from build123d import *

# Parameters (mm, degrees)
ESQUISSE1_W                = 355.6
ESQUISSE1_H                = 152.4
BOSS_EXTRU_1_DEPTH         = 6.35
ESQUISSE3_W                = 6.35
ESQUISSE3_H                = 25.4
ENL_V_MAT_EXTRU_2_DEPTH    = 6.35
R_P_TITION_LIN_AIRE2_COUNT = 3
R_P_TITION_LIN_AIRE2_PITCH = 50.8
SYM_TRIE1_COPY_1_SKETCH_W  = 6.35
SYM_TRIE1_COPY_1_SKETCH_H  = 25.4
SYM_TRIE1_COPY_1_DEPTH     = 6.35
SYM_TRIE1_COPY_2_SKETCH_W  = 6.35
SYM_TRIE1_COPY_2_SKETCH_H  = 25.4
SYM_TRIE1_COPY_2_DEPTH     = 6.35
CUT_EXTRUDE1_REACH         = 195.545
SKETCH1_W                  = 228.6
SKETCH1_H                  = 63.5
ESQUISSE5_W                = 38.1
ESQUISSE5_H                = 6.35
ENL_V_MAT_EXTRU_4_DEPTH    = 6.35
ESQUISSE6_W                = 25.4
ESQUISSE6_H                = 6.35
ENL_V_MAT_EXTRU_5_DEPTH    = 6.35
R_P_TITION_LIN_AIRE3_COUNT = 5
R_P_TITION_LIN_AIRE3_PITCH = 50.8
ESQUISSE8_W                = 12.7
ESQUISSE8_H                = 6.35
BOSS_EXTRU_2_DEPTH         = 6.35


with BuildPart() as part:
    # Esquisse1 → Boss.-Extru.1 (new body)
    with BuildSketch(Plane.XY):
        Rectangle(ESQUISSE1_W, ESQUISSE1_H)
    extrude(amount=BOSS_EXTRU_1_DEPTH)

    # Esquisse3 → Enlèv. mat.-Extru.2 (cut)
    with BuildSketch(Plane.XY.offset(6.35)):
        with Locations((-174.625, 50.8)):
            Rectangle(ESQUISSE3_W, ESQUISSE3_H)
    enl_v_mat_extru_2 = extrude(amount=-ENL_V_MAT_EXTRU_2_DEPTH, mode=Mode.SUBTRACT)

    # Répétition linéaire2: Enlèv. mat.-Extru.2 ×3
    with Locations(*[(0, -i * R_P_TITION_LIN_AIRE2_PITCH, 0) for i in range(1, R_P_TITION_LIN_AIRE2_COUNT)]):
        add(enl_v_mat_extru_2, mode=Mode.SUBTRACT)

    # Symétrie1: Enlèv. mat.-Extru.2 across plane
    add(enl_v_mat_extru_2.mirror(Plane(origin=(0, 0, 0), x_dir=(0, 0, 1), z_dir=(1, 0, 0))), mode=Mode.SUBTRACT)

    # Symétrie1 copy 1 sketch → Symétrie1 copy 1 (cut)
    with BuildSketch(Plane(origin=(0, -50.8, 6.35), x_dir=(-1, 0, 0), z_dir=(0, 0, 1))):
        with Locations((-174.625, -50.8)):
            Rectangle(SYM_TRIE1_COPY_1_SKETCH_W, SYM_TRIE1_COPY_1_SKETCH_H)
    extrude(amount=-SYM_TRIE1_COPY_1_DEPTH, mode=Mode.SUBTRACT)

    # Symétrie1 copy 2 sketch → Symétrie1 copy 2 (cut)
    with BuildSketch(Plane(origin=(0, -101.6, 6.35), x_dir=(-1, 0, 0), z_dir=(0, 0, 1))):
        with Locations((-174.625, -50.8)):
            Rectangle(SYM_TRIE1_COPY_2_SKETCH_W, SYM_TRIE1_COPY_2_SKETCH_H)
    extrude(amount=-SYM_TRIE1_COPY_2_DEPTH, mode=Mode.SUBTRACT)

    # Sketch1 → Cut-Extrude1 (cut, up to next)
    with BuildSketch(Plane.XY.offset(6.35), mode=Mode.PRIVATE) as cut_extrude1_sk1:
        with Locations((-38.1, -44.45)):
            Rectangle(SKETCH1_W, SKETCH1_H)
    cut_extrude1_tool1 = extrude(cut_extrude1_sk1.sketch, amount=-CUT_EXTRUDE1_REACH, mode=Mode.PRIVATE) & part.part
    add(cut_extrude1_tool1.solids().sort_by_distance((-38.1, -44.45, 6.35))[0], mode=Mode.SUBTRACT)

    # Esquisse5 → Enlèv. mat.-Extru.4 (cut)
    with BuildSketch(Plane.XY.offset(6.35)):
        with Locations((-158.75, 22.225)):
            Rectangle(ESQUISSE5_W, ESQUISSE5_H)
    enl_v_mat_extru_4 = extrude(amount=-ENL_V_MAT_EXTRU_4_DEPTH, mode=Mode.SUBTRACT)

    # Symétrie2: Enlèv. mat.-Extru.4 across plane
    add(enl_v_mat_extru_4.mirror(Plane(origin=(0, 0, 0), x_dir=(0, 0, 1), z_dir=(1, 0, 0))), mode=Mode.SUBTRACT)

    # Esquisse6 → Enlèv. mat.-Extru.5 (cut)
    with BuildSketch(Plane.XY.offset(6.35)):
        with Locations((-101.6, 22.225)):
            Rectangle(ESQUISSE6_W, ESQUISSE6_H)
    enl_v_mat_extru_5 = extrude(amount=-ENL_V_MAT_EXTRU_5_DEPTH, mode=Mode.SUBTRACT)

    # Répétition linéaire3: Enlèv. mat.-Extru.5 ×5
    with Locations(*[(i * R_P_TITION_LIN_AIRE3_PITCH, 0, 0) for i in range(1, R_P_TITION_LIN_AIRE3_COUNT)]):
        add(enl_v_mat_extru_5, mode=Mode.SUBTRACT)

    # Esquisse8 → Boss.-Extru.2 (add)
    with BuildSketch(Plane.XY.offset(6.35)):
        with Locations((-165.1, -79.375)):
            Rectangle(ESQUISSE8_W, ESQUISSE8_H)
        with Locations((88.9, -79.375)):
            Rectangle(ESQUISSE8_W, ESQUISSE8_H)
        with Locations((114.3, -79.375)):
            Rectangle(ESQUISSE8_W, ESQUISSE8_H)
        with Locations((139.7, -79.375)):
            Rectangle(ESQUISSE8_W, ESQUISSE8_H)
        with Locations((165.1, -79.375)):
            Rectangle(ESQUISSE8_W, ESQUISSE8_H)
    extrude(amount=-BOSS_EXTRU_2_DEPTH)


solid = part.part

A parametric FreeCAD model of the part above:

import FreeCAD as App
import Part
import Sketcher
Q = App.Units.Quantity

doc = App.newDocument("Part")
params = doc.addObject("Spreadsheet::Sheet", "Params")
for row, (alias, value) in enumerate([
    ("sketch1_width", "14 in"),
    ("sketch1_height", "6 in"),
    ("pad1_length", "0.25 in"),
    ("sketch2_height", "1 in"),
    ("sketch2_width", "0.25 in"),
    ("pocket1_length", "0.25 in"),
    ("linearpattern_pitch", "2 in"),
    ("sketch3_height", "1 in"),
    ("sketch3_width", "0.25 in"),
    ("pocket2_length", "0.25 in"),
    ("sketch4_height", "1 in"),
    ("sketch4_width", "0.25 in"),
    ("pocket3_length", "0.25 in"),
    ("sketch5_width", "9 in"),
    ("sketch5_height", "2.5 in"),
    ("sketch6_width", "1.5 in"),
    ("sketch6_height", "0.25 in"),
    ("pocket5_length", "0.25 in"),
    ("sketch7_width", "1 in"),
    ("sketch7_height", "0.25 in"),
    ("pocket6_length", "0.25 in"),
    ("linearpattern2_pitch", "2 in"),
    ("sketch8_width", "0.5 in"),
    ("sketch8_height", "0.25 in"),
    ("pad2_length", "0.25 in"),
], start=1):
    params.set(f"A{row}", alias)
    params.set(f"B{row}", "=" + value)
    params.setAlias(f"B{row}", alias)

body = doc.addObject("PartDesign::Body", "Body")

sketch1 = body.newObject("Sketcher::SketchObject", "Sketch")
sketch1.AttachmentSupport = (doc.getObject("XY_Plane"), [""])
sketch1.MapMode = "FlatFace"
sketch1.addGeometry(Part.LineSegment(App.Vector(-178, 76, 0), App.Vector(-178, -76, 0)), False)
sketch1.addGeometry(Part.LineSegment(App.Vector(-178, -76, 0), App.Vector(178, -76, 0)), False)
sketch1.addGeometry(Part.LineSegment(App.Vector(178, -76, 0), App.Vector(178, 76, 0)), False)
sketch1.addGeometry(Part.LineSegment(App.Vector(178, 76, 0), App.Vector(-178, 76, 0)), False)
sketch1.addConstraint(Sketcher.Constraint("Coincident", 0, 2, 1, 1))
sketch1.addConstraint(Sketcher.Constraint("Coincident", 1, 2, 2, 1))
sketch1.addConstraint(Sketcher.Constraint("Coincident", 2, 2, 3, 1))
sketch1.addConstraint(Sketcher.Constraint("Coincident", 3, 2, 0, 1))
sketch1.addConstraint(Sketcher.Constraint("Vertical", 0))
sketch1.addConstraint(Sketcher.Constraint("Horizontal", 1))
sketch1.addConstraint(Sketcher.Constraint("Vertical", 2))
sketch1.addConstraint(Sketcher.Constraint("Horizontal", 3))
sketch1.addConstraint(Sketcher.Constraint("Symmetric", 0, 2, 2, 2, -1, 1))
sketch1.addConstraint(Sketcher.Constraint("DistanceX", 1, 1, 1, 2, Q("14 in")))
sketch1.addConstraint(Sketcher.Constraint("DistanceY", 0, 2, 0, 1, Q("6 in")))
sketch1.setExpression("Constraints[9]", "Params.sketch1_width")
sketch1.setExpression("Constraints[10]", "Params.sketch1_height")
pad1 = body.newObject("PartDesign::Pad", "Pad")
pad1.Profile = sketch1
pad1.setExpression("Length", "Params.pad1_length")

sketch2 = body.newObject("Sketcher::SketchObject", "Sketch001")
sketch2.AttachmentSupport = (doc.getObject("XY_Plane"), [""])
sketch2.MapMode = "FlatFace"
sketch2.AttachmentOffset = App.Placement(App.Vector(0, 0, 0.25 * 25.4), App.Rotation())
sketch2.addGeometry(Part.LineSegment(App.Vector(-178, 64, 0), App.Vector(-178, 38, 0)), False)
sketch2.addGeometry(Part.LineSegment(App.Vector(-178, 38, 0), App.Vector(-171, 38, 0)), False)
sketch2.addGeometry(Part.LineSegment(App.Vector(-171, 38, 0), App.Vector(-171, 64, 0)), False)
sketch2.addGeometry(Part.LineSegment(App.Vector(-171, 64, 0), App.Vector(-178, 64, 0)), False)
sketch2.addConstraint(Sketcher.Constraint("Coincident", 0, 2, 1, 1))
sketch2.addConstraint(Sketcher.Constraint("Coincident", 1, 2, 2, 1))
sketch2.addConstraint(Sketcher.Constraint("Coincident", 2, 2, 3, 1))
sketch2.addConstraint(Sketcher.Constraint("Coincident", 3, 2, 0, 1))
sketch2.addConstraint(Sketcher.Constraint("Vertical", 0))
sketch2.addConstraint(Sketcher.Constraint("Horizontal", 1))
sketch2.addConstraint(Sketcher.Constraint("Vertical", 2))
sketch2.addConstraint(Sketcher.Constraint("Horizontal", 3))
sketch2.addConstraint(Sketcher.Constraint("DistanceY", 0, 2, 0, 1, Q("1 in")))
sketch2.addConstraint(Sketcher.Constraint("DistanceX", 0, 2, -1, 1, Q("7 in")))
sketch2.addConstraint(Sketcher.Constraint("DistanceX", 1, 1, 1, 2, Q("0.25 in")))
sketch2.addConstraint(Sketcher.Constraint("DistanceY", -1, 1, 0, 2, Q("1.5 in")))
sketch2.setExpression("Constraints[8]", "Params.sketch2_height")
sketch2.setExpression("Constraints[10]", "Params.sketch2_width")
pocket1 = body.newObject("PartDesign::Pocket", "Pocket")
pocket1.Profile = sketch2
pocket1.setExpression("Length", "Params.pocket1_length")
doc.recompute()

linearpattern = body.newObject("PartDesign::LinearPattern", "LinearPattern")
linearpattern.Originals = [pocket1]
linearpattern.Direction = (doc.getObject("Y_Axis"), [""])
linearpattern.Mode = "offset"
linearpattern.setExpression("Offset", "Params.linearpattern_pitch")
linearpattern.Occurrences = 3
linearpattern.Reversed = True
body.Tip = linearpattern
doc.recompute()

mirrored = body.newObject("PartDesign::Mirrored", "Mirrored")
mirrored.Originals = [pocket1]
mirrored.MirrorPlane = (doc.getObject("YZ_Plane"), [""])
body.Tip = mirrored

sketch3 = body.newObject("Sketcher::SketchObject", "Sketch002")
sketch3.AttachmentSupport = (doc.getObject("XY_Plane"), [""])
sketch3.MapMode = "FlatFace"
sketch3.AttachmentOffset = App.Placement(App.Vector(0, 0, 0.25 * 25.4), App.Rotation())
sketch3.addGeometry(Part.LineSegment(App.Vector(178, -13, 0), App.Vector(178, 13, 0)), False)
sketch3.addGeometry(Part.LineSegment(App.Vector(178, 13, 0), App.Vector(171, 13, 0)), False)
sketch3.addGeometry(Part.LineSegment(App.Vector(171, 13, 0), App.Vector(171, -13, 0)), False)
sketch3.addGeometry(Part.LineSegment(App.Vector(171, -13, 0), App.Vector(178, -13, 0)), False)
sketch3.addConstraint(Sketcher.Constraint("Coincident", 0, 2, 1, 1))
sketch3.addConstraint(Sketcher.Constraint("Coincident", 1, 2, 2, 1))
sketch3.addConstraint(Sketcher.Constraint("Coincident", 2, 2, 3, 1))
sketch3.addConstraint(Sketcher.Constraint("Coincident", 3, 2, 0, 1))
sketch3.addConstraint(Sketcher.Constraint("Vertical", 0))
sketch3.addConstraint(Sketcher.Constraint("Horizontal", 1))
sketch3.addConstraint(Sketcher.Constraint("Vertical", 2))
sketch3.addConstraint(Sketcher.Constraint("Horizontal", 3))
sketch3.addConstraint(Sketcher.Constraint("DistanceY", 0, 1, 0, 2, Q("1 in")))
sketch3.addConstraint(Sketcher.Constraint("DistanceX", -1, 1, 0, 2, Q("7 in")))
sketch3.addConstraint(Sketcher.Constraint("DistanceX", 1, 2, 1, 1, Q("0.25 in")))
sketch3.addConstraint(Sketcher.Constraint("DistanceY", -1, 1, 0, 2, Q("0.5 in")))
sketch3.setExpression("Constraints[8]", "Params.sketch3_height")
sketch3.setExpression("Constraints[10]", "Params.sketch3_width")
pocket2 = body.newObject("PartDesign::Pocket", "Pocket001")
pocket2.Profile = sketch3
pocket2.setExpression("Length", "Params.pocket2_length")

sketch4 = body.newObject("Sketcher::SketchObject", "Sketch003")
sketch4.AttachmentSupport = (doc.getObject("XY_Plane"), [""])
sketch4.MapMode = "FlatFace"
sketch4.AttachmentOffset = App.Placement(App.Vector(0, 0, 0.25 * 25.4), App.Rotation())
sketch4.addGeometry(Part.LineSegment(App.Vector(178, -64, 0), App.Vector(178, -38, 0)), False)
sketch4.addGeometry(Part.LineSegment(App.Vector(178, -38, 0), App.Vector(171, -38, 0)), False)
sketch4.addGeometry(Part.LineSegment(App.Vector(171, -38, 0), App.Vector(171, -64, 0)), False)
sketch4.addGeometry(Part.LineSegment(App.Vector(171, -64, 0), App.Vector(178, -64, 0)), False)
sketch4.addConstraint(Sketcher.Constraint("Coincident", 0, 2, 1, 1))
sketch4.addConstraint(Sketcher.Constraint("Coincident", 1, 2, 2, 1))
sketch4.addConstraint(Sketcher.Constraint("Coincident", 2, 2, 3, 1))
sketch4.addConstraint(Sketcher.Constraint("Coincident", 3, 2, 0, 1))
sketch4.addConstraint(Sketcher.Constraint("Vertical", 0))
sketch4.addConstraint(Sketcher.Constraint("Horizontal", 1))
sketch4.addConstraint(Sketcher.Constraint("Vertical", 2))
sketch4.addConstraint(Sketcher.Constraint("Horizontal", 3))
sketch4.addConstraint(Sketcher.Constraint("DistanceY", 0, 1, 0, 2, Q("1 in")))
sketch4.addConstraint(Sketcher.Constraint("DistanceX", -1, 1, 0, 2, Q("7 in")))
sketch4.addConstraint(Sketcher.Constraint("DistanceX", 1, 2, 1, 1, Q("0.25 in")))
sketch4.addConstraint(Sketcher.Constraint("DistanceY", 0, 2, -1, 1, Q("1.5 in")))
sketch4.setExpression("Constraints[8]", "Params.sketch4_height")
sketch4.setExpression("Constraints[10]", "Params.sketch4_width")
pocket3 = body.newObject("PartDesign::Pocket", "Pocket002")
pocket3.Profile = sketch4
pocket3.setExpression("Length", "Params.pocket3_length")

sketch5 = body.newObject("Sketcher::SketchObject", "Sketch004")
sketch5.AttachmentSupport = (doc.getObject("XY_Plane"), [""])
sketch5.MapMode = "FlatFace"
sketch5.AttachmentOffset = App.Placement(App.Vector(0, 0, 0.25 * 25.4), App.Rotation())
sketch5.addGeometry(Part.LineSegment(App.Vector(-152, -13, 0), App.Vector(-152, -76, 0)), False)
sketch5.addGeometry(Part.LineSegment(App.Vector(-152, -76, 0), App.Vector(76, -76, 0)), False)
sketch5.addGeometry(Part.LineSegment(App.Vector(76, -76, 0), App.Vector(76, -13, 0)), False)
sketch5.addGeometry(Part.LineSegment(App.Vector(76, -13, 0), App.Vector(-152, -13, 0)), False)
sketch5.addConstraint(Sketcher.Constraint("Coincident", 0, 2, 1, 1))
sketch5.addConstraint(Sketcher.Constraint("Coincident", 1, 2, 2, 1))
sketch5.addConstraint(Sketcher.Constraint("Coincident", 2, 2, 3, 1))
sketch5.addConstraint(Sketcher.Constraint("Coincident", 3, 2, 0, 1))
sketch5.addConstraint(Sketcher.Constraint("Vertical", 0))
sketch5.addConstraint(Sketcher.Constraint("Horizontal", 1))
sketch5.addConstraint(Sketcher.Constraint("Vertical", 2))
sketch5.addConstraint(Sketcher.Constraint("Horizontal", 3))
sketch5.addConstraint(Sketcher.Constraint("DistanceX", 1, 1, 1, 2, Q("9 in")))
sketch5.addConstraint(Sketcher.Constraint("DistanceY", 0, 2, 0, 1, Q("2.5 in")))
sketch5.addConstraint(Sketcher.Constraint("DistanceX", 0, 2, -1, 1, Q("6 in")))
sketch5.addConstraint(Sketcher.Constraint("DistanceY", 0, 2, -1, 1, Q("3 in")))
sketch5.setExpression("Constraints[8]", "Params.sketch5_width")
sketch5.setExpression("Constraints[9]", "Params.sketch5_height")
pocket4 = body.newObject("PartDesign::Pocket", "Pocket003")
pocket4.Profile = sketch5
pocket4.Type = "UpToFirst"

sketch6 = body.newObject("Sketcher::SketchObject", "Sketch005")
sketch6.AttachmentSupport = (doc.getObject("XY_Plane"), [""])
sketch6.MapMode = "FlatFace"
sketch6.AttachmentOffset = App.Placement(App.Vector(0, 0, 0.25 * 25.4), App.Rotation())
sketch6.addGeometry(Part.LineSegment(App.Vector(-178, 25, 0), App.Vector(-178, 19, 0)), False)
sketch6.addGeometry(Part.LineSegment(App.Vector(-178, 19, 0), App.Vector(-140, 19, 0)), False)
sketch6.addGeometry(Part.LineSegment(App.Vector(-140, 19, 0), App.Vector(-140, 25, 0)), False)
sketch6.addGeometry(Part.LineSegment(App.Vector(-140, 25, 0), App.Vector(-178, 25, 0)), False)
sketch6.addConstraint(Sketcher.Constraint("Coincident", 0, 2, 1, 1))
sketch6.addConstraint(Sketcher.Constraint("Coincident", 1, 2, 2, 1))
sketch6.addConstraint(Sketcher.Constraint("Coincident", 2, 2, 3, 1))
sketch6.addConstraint(Sketcher.Constraint("Coincident", 3, 2, 0, 1))
sketch6.addConstraint(Sketcher.Constraint("Vertical", 0))
sketch6.addConstraint(Sketcher.Constraint("Horizontal", 1))
sketch6.addConstraint(Sketcher.Constraint("Vertical", 2))
sketch6.addConstraint(Sketcher.Constraint("Horizontal", 3))
sketch6.addConstraint(Sketcher.Constraint("DistanceX", 1, 1, 1, 2, Q("1.5 in")))
sketch6.addConstraint(Sketcher.Constraint("DistanceX", 0, 2, -1, 1, Q("7 in")))
sketch6.addConstraint(Sketcher.Constraint("DistanceY", -1, 1, 2, 2, Q("1 in")))
sketch6.addConstraint(Sketcher.Constraint("DistanceY", 0, 2, 0, 1, Q("0.25 in")))
sketch6.setExpression("Constraints[8]", "Params.sketch6_width")
sketch6.setExpression("Constraints[11]", "Params.sketch6_height")
pocket5 = body.newObject("PartDesign::Pocket", "Pocket004")
pocket5.Profile = sketch6
pocket5.setExpression("Length", "Params.pocket5_length")
doc.recompute()

mirrored2 = body.newObject("PartDesign::Mirrored", "Mirrored001")
mirrored2.Originals = [pocket5]
mirrored2.MirrorPlane = (doc.getObject("YZ_Plane"), [""])
body.Tip = mirrored2

sketch7 = body.newObject("Sketcher::SketchObject", "Sketch006")
sketch7.AttachmentSupport = (doc.getObject("XY_Plane"), [""])
sketch7.MapMode = "FlatFace"
sketch7.AttachmentOffset = App.Placement(App.Vector(0, 0, 0.25 * 25.4), App.Rotation())
sketch7.addGeometry(Part.LineSegment(App.Vector(-114, 25, 0), App.Vector(-114, 19, 0)), False)
sketch7.addGeometry(Part.LineSegment(App.Vector(-114, 19, 0), App.Vector(-89, 19, 0)), False)
sketch7.addGeometry(Part.LineSegment(App.Vector(-89, 19, 0), App.Vector(-89, 25, 0)), False)
sketch7.addGeometry(Part.LineSegment(App.Vector(-89, 25, 0), App.Vector(-114, 25, 0)), False)
sketch7.addConstraint(Sketcher.Constraint("Coincident", 0, 2, 1, 1))
sketch7.addConstraint(Sketcher.Constraint("Coincident", 1, 2, 2, 1))
sketch7.addConstraint(Sketcher.Constraint("Coincident", 2, 2, 3, 1))
sketch7.addConstraint(Sketcher.Constraint("Coincident", 3, 2, 0, 1))
sketch7.addConstraint(Sketcher.Constraint("Vertical", 0))
sketch7.addConstraint(Sketcher.Constraint("Horizontal", 1))
sketch7.addConstraint(Sketcher.Constraint("Vertical", 2))
sketch7.addConstraint(Sketcher.Constraint("Horizontal", 3))
sketch7.addConstraint(Sketcher.Constraint("DistanceX", 1, 1, 1, 2, Q("1 in")))
sketch7.addConstraint(Sketcher.Constraint("DistanceY", -1, 1, 2, 2, Q("1 in")))
sketch7.addConstraint(Sketcher.Constraint("DistanceY", 0, 2, 0, 1, Q("0.25 in")))
sketch7.addConstraint(Sketcher.Constraint("DistanceX", 0, 2, -1, 1, Q("4.5 in")))
sketch7.setExpression("Constraints[8]", "Params.sketch7_width")
sketch7.setExpression("Constraints[10]", "Params.sketch7_height")
pocket6 = body.newObject("PartDesign::Pocket", "Pocket005")
pocket6.Profile = sketch7
pocket6.setExpression("Length", "Params.pocket6_length")
doc.recompute()

linearpattern2 = body.newObject("PartDesign::LinearPattern", "LinearPattern001")
linearpattern2.Originals = [pocket6]
linearpattern2.Direction = (doc.getObject("X_Axis"), [""])
linearpattern2.Mode = "offset"
linearpattern2.setExpression("Offset", "Params.linearpattern2_pitch")
linearpattern2.Occurrences = 5
body.Tip = linearpattern2

sketch8 = body.newObject("Sketcher::SketchObject", "Sketch007")
sketch8.AttachmentSupport = (doc.getObject("XY_Plane"), [""])
sketch8.MapMode = "FlatFace"
sketch8.AttachmentOffset = App.Placement(App.Vector(0, 0, 0.25 * 25.4), App.Rotation())
sketch8.addGeometry(Part.LineSegment(App.Vector(-171, -76, 0), App.Vector(-171, -83, 0)), False)
sketch8.addGeometry(Part.LineSegment(App.Vector(-171, -83, 0), App.Vector(-159, -83, 0)), False)
sketch8.addGeometry(Part.LineSegment(App.Vector(-159, -83, 0), App.Vector(-159, -76, 0)), False)
sketch8.addGeometry(Part.LineSegment(App.Vector(-159, -76, 0), App.Vector(-171, -76, 0)), False)
sketch8.addGeometry(Part.LineSegment(App.Vector(83, -76, 0), App.Vector(83, -83, 0)), False)
sketch8.addGeometry(Part.LineSegment(App.Vector(83, -83, 0), App.Vector(95, -83, 0)), False)
sketch8.addGeometry(Part.LineSegment(App.Vector(95, -83, 0), App.Vector(95, -76, 0)), False)
sketch8.addGeometry(Part.LineSegment(App.Vector(95, -76, 0), App.Vector(83, -76, 0)), False)
sketch8.addGeometry(Part.LineSegment(App.Vector(108, -76, 0), App.Vector(108, -83, 0)), False)
sketch8.addGeometry(Part.LineSegment(App.Vector(108, -83, 0), App.Vector(121, -83, 0)), False)
sketch8.addGeometry(Part.LineSegment(App.Vector(121, -83, 0), App.Vector(121, -76, 0)), False)
sketch8.addGeometry(Part.LineSegment(App.Vector(121, -76, 0), App.Vector(108, -76, 0)), False)
sketch8.addGeometry(Part.LineSegment(App.Vector(133, -76, 0), App.Vector(133, -83, 0)), False)
sketch8.addGeometry(Part.LineSegment(App.Vector(133, -83, 0), App.Vector(146, -83, 0)), False)
sketch8.addGeometry(Part.LineSegment(App.Vector(146, -83, 0), App.Vector(146, -76, 0)), False)
sketch8.addGeometry(Part.LineSegment(App.Vector(146, -76, 0), App.Vector(133, -76, 0)), False)
sketch8.addGeometry(Part.LineSegment(App.Vector(159, -76, 0), App.Vector(159, -83, 0)), False)
sketch8.addGeometry(Part.LineSegment(App.Vector(159, -83, 0), App.Vector(171, -83, 0)), False)
sketch8.addGeometry(Part.LineSegment(App.Vector(171, -83, 0), App.Vector(171, -76, 0)), False)
sketch8.addGeometry(Part.LineSegment(App.Vector(171, -76, 0), App.Vector(159, -76, 0)), False)
sketch8.addConstraint(Sketcher.Constraint("Coincident", 0, 2, 1, 1))
sketch8.addConstraint(Sketcher.Constraint("Coincident", 1, 2, 2, 1))
sketch8.addConstraint(Sketcher.Constraint("Coincident", 2, 2, 3, 1))
sketch8.addConstraint(Sketcher.Constraint("Coincident", 3, 2, 0, 1))
sketch8.addConstraint(Sketcher.Constraint("Coincident", 4, 2, 5, 1))
sketch8.addConstraint(Sketcher.Constraint("Coincident", 5, 2, 6, 1))
sketch8.addConstraint(Sketcher.Constraint("Coincident", 6, 2, 7, 1))
sketch8.addConstraint(Sketcher.Constraint("Coincident", 7, 2, 4, 1))
sketch8.addConstraint(Sketcher.Constraint("Coincident", 8, 2, 9, 1))
sketch8.addConstraint(Sketcher.Constraint("Coincident", 9, 2, 10, 1))
sketch8.addConstraint(Sketcher.Constraint("Coincident", 10, 2, 11, 1))
sketch8.addConstraint(Sketcher.Constraint("Coincident", 11, 2, 8, 1))
sketch8.addConstraint(Sketcher.Constraint("Coincident", 12, 2, 13, 1))
sketch8.addConstraint(Sketcher.Constraint("Coincident", 13, 2, 14, 1))
sketch8.addConstraint(Sketcher.Constraint("Coincident", 14, 2, 15, 1))
sketch8.addConstraint(Sketcher.Constraint("Coincident", 15, 2, 12, 1))
sketch8.addConstraint(Sketcher.Constraint("Coincident", 16, 2, 17, 1))
sketch8.addConstraint(Sketcher.Constraint("Coincident", 17, 2, 18, 1))
sketch8.addConstraint(Sketcher.Constraint("Coincident", 18, 2, 19, 1))
sketch8.addConstraint(Sketcher.Constraint("Coincident", 19, 2, 16, 1))
sketch8.addConstraint(Sketcher.Constraint("Vertical", 0))
sketch8.addConstraint(Sketcher.Constraint("Horizontal", 1))
sketch8.addConstraint(Sketcher.Constraint("Vertical", 2))
sketch8.addConstraint(Sketcher.Constraint("Horizontal", 3))
sketch8.addConstraint(Sketcher.Constraint("Vertical", 4))
sketch8.addConstraint(Sketcher.Constraint("Horizontal", 5))
sketch8.addConstraint(Sketcher.Constraint("Vertical", 6))
sketch8.addConstraint(Sketcher.Constraint("Horizontal", 7))
sketch8.addConstraint(Sketcher.Constraint("Vertical", 8))
sketch8.addConstraint(Sketcher.Constraint("Horizontal", 9))
sketch8.addConstraint(Sketcher.Constraint("Vertical", 10))
sketch8.addConstraint(Sketcher.Constraint("Horizontal", 11))
sketch8.addConstraint(Sketcher.Constraint("Vertical", 12))
sketch8.addConstraint(Sketcher.Constraint("Horizontal", 13))
sketch8.addConstraint(Sketcher.Constraint("Vertical", 14))
sketch8.addConstraint(Sketcher.Constraint("Horizontal", 15))
sketch8.addConstraint(Sketcher.Constraint("Vertical", 16))
sketch8.addConstraint(Sketcher.Constraint("Horizontal", 17))
sketch8.addConstraint(Sketcher.Constraint("Vertical", 18))
sketch8.addConstraint(Sketcher.Constraint("Horizontal", 19))
sketch8.addConstraint(Sketcher.Constraint("Symmetric", 1, 2, 16, 2, -2))
sketch8.addConstraint(Sketcher.Constraint("Symmetric", 3, 2, 18, 2, -2))
sketch8.addConstraint(Sketcher.Constraint("Horizontal", 1, 2, 4, 2))
sketch8.addConstraint(Sketcher.Constraint("Horizontal", 3, 2, 6, 2))
sketch8.addConstraint(Sketcher.Constraint("Horizontal", 5, 2, 8, 2))
sketch8.addConstraint(Sketcher.Constraint("Horizontal", 7, 2, 10, 2))
sketch8.addConstraint(Sketcher.Constraint("Horizontal", 9, 2, 12, 2))
sketch8.addConstraint(Sketcher.Constraint("Horizontal", 11, 2, 14, 2))
sketch8.addConstraint(Sketcher.Constraint("Equal", 3, 5))
sketch8.addConstraint(Sketcher.Constraint("Equal", 7, 9))
sketch8.addConstraint(Sketcher.Constraint("Equal", 11, 13))
sketch8.addConstraint(Sketcher.Constraint("DistanceX", 1, 1, 1, 2, Q("0.5 in")))
sketch8.addConstraint(Sketcher.Constraint("DistanceY", 2, 2, -1, 1, Q("3 in")))
sketch8.addConstraint(Sketcher.Constraint("DistanceX", 0, 2, 4, 2, Q("10 in")))
sketch8.addConstraint(Sketcher.Constraint("DistanceX", 4, 2, 8, 2, Q("1 in")))
sketch8.addConstraint(Sketcher.Constraint("DistanceX", 8, 2, 12, 2, Q("1 in")))
sketch8.addConstraint(Sketcher.Constraint("DistanceX", 12, 2, 16, 2, Q("1 in")))
sketch8.addConstraint(Sketcher.Constraint("DistanceY", 0, 2, 0, 1, Q("0.25 in")))
sketch8.setExpression("Constraints[51]", "Params.sketch8_width")
sketch8.setExpression("Constraints[57]", "Params.sketch8_height")
pad2 = body.newObject("PartDesign::Pad", "Pad001")
pad2.Profile = sketch8
pad2.setExpression("Length", "Params.pad2_length")
pad2.Reversed = True

doc.recompute()
